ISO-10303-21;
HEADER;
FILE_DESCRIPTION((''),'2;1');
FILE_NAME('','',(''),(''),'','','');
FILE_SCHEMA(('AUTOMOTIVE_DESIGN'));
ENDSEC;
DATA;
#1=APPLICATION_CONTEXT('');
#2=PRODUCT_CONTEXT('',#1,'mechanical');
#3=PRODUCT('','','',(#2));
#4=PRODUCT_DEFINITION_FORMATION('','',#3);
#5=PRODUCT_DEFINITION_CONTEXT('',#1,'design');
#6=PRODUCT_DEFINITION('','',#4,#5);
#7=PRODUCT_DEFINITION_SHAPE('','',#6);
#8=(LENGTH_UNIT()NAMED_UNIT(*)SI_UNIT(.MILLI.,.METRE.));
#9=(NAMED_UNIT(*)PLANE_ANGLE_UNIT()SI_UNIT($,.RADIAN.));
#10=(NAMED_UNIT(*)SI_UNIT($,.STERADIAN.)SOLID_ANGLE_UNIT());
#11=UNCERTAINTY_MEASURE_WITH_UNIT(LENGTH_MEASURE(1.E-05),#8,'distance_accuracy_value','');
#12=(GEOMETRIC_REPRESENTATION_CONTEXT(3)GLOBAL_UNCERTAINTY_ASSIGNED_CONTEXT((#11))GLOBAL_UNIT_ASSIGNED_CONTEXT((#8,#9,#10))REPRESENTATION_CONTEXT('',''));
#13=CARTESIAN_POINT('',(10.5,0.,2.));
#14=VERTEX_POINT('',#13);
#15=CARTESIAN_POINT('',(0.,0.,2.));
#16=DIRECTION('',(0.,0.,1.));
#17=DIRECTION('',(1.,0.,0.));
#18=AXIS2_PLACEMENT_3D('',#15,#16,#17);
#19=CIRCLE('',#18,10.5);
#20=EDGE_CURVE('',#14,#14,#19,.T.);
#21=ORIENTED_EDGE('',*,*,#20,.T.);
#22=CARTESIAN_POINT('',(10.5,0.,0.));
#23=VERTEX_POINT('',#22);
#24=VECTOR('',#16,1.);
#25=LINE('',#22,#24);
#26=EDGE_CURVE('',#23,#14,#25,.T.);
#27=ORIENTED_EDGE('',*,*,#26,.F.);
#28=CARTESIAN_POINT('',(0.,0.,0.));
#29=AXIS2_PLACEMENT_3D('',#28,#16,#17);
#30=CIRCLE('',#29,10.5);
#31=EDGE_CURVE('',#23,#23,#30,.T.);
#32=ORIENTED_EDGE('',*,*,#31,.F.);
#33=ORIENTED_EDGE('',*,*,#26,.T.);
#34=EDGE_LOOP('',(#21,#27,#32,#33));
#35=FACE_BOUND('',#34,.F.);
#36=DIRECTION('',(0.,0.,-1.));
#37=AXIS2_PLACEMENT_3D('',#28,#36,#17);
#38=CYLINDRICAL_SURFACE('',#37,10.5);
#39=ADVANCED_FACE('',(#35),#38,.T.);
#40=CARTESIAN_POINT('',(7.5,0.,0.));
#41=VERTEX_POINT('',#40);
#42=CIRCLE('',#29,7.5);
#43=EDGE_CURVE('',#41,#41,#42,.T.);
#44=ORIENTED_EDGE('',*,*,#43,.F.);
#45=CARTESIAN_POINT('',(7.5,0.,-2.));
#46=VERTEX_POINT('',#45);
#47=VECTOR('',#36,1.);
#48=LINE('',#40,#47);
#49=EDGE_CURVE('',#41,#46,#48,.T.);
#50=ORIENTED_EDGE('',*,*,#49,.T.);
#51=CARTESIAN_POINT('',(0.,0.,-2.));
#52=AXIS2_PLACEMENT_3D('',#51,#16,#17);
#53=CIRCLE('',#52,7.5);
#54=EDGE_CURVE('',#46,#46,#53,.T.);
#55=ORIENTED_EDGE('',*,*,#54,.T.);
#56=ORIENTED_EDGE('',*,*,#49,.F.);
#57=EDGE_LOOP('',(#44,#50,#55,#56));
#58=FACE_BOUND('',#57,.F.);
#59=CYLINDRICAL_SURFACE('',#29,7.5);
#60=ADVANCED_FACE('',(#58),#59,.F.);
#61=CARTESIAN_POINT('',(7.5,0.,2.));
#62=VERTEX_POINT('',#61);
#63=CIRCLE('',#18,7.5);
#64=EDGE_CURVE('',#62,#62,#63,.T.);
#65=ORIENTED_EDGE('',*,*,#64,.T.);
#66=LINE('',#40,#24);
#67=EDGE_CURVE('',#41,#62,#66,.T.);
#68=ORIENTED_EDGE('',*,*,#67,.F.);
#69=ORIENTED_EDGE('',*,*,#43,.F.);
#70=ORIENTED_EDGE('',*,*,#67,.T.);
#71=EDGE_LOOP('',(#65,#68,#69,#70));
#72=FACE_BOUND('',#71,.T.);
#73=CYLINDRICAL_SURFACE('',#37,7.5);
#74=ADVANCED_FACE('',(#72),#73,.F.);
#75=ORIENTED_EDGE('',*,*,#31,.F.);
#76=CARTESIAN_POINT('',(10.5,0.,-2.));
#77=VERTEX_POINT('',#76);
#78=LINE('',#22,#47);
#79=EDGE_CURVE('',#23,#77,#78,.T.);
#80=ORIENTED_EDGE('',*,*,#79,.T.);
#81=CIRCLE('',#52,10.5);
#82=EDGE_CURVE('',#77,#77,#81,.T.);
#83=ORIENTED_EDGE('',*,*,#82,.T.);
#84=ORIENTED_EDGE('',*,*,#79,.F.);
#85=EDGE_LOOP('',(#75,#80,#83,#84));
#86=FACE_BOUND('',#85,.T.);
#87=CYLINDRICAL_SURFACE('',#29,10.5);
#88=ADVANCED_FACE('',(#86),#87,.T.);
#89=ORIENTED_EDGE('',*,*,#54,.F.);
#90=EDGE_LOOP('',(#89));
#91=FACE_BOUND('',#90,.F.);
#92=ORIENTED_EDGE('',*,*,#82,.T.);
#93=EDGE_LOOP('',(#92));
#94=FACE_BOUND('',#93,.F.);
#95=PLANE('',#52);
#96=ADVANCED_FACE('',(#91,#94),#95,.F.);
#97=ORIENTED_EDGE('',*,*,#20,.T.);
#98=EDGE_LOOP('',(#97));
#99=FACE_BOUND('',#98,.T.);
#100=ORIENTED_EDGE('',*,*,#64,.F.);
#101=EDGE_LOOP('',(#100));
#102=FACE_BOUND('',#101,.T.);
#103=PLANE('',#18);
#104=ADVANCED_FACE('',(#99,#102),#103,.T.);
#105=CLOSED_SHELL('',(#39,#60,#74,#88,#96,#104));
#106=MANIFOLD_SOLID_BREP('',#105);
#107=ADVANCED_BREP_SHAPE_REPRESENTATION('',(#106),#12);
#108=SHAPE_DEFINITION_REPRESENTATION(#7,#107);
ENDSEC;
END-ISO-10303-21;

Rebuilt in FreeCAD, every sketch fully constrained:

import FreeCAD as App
import Part
import Sketcher
Q = App.Units.Quantity

doc = App.newDocument("Part")
body = doc.addObject("PartDesign::Body", "Body")

# Sketch on XY plane
sketch1 = doc.addObject("Sketcher::SketchObject", "Sketch")
body.addObject(sketch1)
sketch1.AttachmentSupport = (doc.XY_Plane, [""])
sketch1.MapMode = "FlatFace"
sketch1.addGeometry([
    Part.Circle(App.Vector(0, 0, 0), App.Vector(0, 0, 1), 10),
    Part.Circle(App.Vector(0, 0, 0), App.Vector(0, 0, 1), 8),
], False)
sketch1.addConstraint([
    Sketcher.Constraint("Coincident", 0, 3, -1, 1),
    Sketcher.Constraint("Coincident", 1, 3, -1, 1),
    Sketcher.Constraint("Diameter", 0, Q("21 mm")),
    Sketcher.Constraint("Diameter", 1, Q("15 mm")),
])
pad1 = doc.addObject("PartDesign::Pad", "Pad")
body.addObject(pad1)
pad1.Profile = sketch1
pad1.Length = 4
pad1.Midplane = True

doc.recompute()
